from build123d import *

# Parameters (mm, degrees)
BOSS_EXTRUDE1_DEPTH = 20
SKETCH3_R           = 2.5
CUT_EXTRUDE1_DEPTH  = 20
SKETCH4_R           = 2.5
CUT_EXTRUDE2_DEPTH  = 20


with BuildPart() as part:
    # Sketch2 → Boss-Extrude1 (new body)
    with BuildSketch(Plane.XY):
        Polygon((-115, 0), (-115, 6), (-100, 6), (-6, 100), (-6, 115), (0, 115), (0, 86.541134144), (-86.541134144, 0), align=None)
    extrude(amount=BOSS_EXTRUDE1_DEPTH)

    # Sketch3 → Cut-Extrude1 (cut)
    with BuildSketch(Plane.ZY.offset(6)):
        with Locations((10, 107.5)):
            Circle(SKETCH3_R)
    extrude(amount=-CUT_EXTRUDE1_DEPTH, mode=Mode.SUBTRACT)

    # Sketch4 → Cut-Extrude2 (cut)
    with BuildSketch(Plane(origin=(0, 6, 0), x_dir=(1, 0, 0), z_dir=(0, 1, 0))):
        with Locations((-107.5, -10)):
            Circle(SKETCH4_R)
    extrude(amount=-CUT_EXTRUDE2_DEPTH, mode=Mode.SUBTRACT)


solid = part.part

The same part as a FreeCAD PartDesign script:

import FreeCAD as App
import Part
import Sketcher

V = App.Vector
Q = App.Units.Quantity

doc = App.newDocument("Part")
params = doc.addObject("Spreadsheet::Sheet", "Params")
for row, (alias, value) in enumerate([
    ("sketch1_width", "6 mm"),
    ("sketch1_width2", "15 mm"),
    ("pad1_length", "20 mm"),
    ("sketch2_diameter", "5 mm"),
    ("pocket1_length", "20 mm"),
    ("sketch3_diameter", "5 mm"),
    ("pocket2_length", "20 mm"),
], start=1):
    params.set(f"A{row}", alias)
    params.set(f"B{row}", "=" + value)
    params.setAlias(f"B{row}", alias)

body = doc.addObject("PartDesign::Body", "Body")

sketch1 = doc.addObject("Sketcher::SketchObject", "Sketch")
body.addObject(sketch1)
sketch1.AttachmentSupport = (doc.XY_Plane, [""])
sketch1.MapMode = "FlatFace"
sketch1.addGeometry([
    Part.LineSegment(V(-115, 6, 0), V(-115, 0, 0)),
    Part.LineSegment(V(-115, 0, 0), V(-87, 0, 0)),
    Part.LineSegment(V(-87, 0, 0), V(0, 87, 0)),
    Part.LineSegment(V(0, 87, 0), V(0, 115, 0)),
    Part.LineSegment(V(0, 115, 0), V(-6, 115, 0)),
    Part.LineSegment(V(-6, 115, 0), V(-6, 100, 0)),
    Part.LineSegment(V(-6, 100, 0), V(-100, 6, 0)),
    Part.LineSegment(V(-100, 6, 0), V(-115, 6, 0)),
], False)
sketch1.addConstraint([
    Sketcher.Constraint("Coincident", 0, 2, 1, 1),
    Sketcher.Constraint("Coincident", 1, 2, 2, 1),
    Sketcher.Constraint("Coincident", 2, 2, 3, 1),
    Sketcher.Constraint("Coincident", 3, 2, 4, 1),
    Sketcher.Constraint("Coincident", 4, 2, 5, 1),
    Sketcher.Constraint("Coincident", 5, 2, 6, 1),
    Sketcher.Constraint("Coincident", 6, 2, 7, 1),
    Sketcher.Constraint("Coincident", 7, 2, 0, 1),
    Sketcher.Constraint("Vertical", 0),
    Sketcher.Constraint("Horizontal", 1),
    Sketcher.Constraint("Vertical", 3),
    Sketcher.Constraint("Horizontal", 4),
    Sketcher.Constraint("Vertical", 5),
    Sketcher.Constraint("Horizontal", 7),
    Sketcher.Constraint("PointOnObject", 0, 2, -1),
    Sketcher.Constraint("PointOnObject", 2, 2, -2),
    Sketcher.Constraint("Parallel", 2, 6),
    Sketcher.Constraint("Equal", 4, 0),
    Sketcher.Constraint("Equal", 1, 3),
    Sketcher.Constraint("Equal", 7, 5),
    Sketcher.Constraint("DistanceX", 4, 2, 4, 1, Q("6 mm")),
    Sketcher.Constraint("DistanceX", 7, 2, 7, 1, Q("15 mm")),
    Sketcher.Constraint("DistanceX", 0, 2, -1, 1, Q("115 mm")),
    Sketcher.Constraint("DistanceX", 1, 1, 1, 2, Q("28.458866 mm")),
])
sketch1.setExpression("Constraints[20]", "Params.sketch1_width")
sketch1.setExpression("Constraints[21]", "Params.sketch1_width2")
pad1 = doc.addObject("PartDesign::Pad", "Pad")
body.addObject(pad1)
pad1.Profile = sketch1
pad1.setExpression("Length", "Params.pad1_length")

sketch2 = doc.addObject("Sketcher::SketchObject", "Sketch001")
body.addObject(sketch2)
sketch2.AttachmentSupport = (doc.YZ_Plane, [""])
sketch2.MapMode = "FlatFace"
sketch2.AttachmentOffset = App.Placement(V(0, 0, -6), App.Rotation())
sketch2.addGeometry(Part.Circle(V(107.5, 10, 0), V(0, 0, 1), 2.5), False)
sketch2.addConstraint([
    Sketcher.Constraint("Diameter", 0, Q("5 mm")),
    Sketcher.Constraint("DistanceY", -1, 1, 0, 3, Q("10 mm")),
    Sketcher.Constraint("DistanceX", -1, 1, 0, 3, Q("107.5 mm")),
])
sketch2.setExpression("Constraints[0]", "Params.sketch2_diameter")
pocket1 = doc.addObject("PartDesign::Pocket", "Pocket")
body.addObject(pocket1)
pocket1.Profile = sketch2
pocket1.setExpression("Length", "Params.pocket1_length")
pocket1.Reversed = True

sketch3 = doc.addObject("Sketcher::SketchObject", "Sketch002")
body.addObject(sketch3)
sketch3.AttachmentSupport = (doc.XZ_Plane, [""])
sketch3.MapMode = "FlatFace"
sketch3.AttachmentOffset = App.Placement(V(0, 0, -6), App.Rotation())
sketch3.addGeometry(Part.Circle(V(-107.5, 10, 0), V(0, 0, 1), 2.5), False)
sketch3.addConstraint([
    Sketcher.Constraint("Diameter", 0, Q("5 mm")),
    Sketcher.Constraint("DistanceY", -1, 1, 0, 3, Q("10 mm")),
    Sketcher.Constraint("DistanceX", 0, 3, -1, 1, Q("107.5 mm")),
])
sketch3.setExpression("Constraints[0]", "Params.sketch3_diameter")
pocket2 = doc.addObject("PartDesign::Pocket", "Pocket001")
body.addObject(pocket2)
pocket2.Profile = sketch3
pocket2.setExpression("Length", "Params.pocket2_length")
pocket2.Reversed = True

doc.recompute()
